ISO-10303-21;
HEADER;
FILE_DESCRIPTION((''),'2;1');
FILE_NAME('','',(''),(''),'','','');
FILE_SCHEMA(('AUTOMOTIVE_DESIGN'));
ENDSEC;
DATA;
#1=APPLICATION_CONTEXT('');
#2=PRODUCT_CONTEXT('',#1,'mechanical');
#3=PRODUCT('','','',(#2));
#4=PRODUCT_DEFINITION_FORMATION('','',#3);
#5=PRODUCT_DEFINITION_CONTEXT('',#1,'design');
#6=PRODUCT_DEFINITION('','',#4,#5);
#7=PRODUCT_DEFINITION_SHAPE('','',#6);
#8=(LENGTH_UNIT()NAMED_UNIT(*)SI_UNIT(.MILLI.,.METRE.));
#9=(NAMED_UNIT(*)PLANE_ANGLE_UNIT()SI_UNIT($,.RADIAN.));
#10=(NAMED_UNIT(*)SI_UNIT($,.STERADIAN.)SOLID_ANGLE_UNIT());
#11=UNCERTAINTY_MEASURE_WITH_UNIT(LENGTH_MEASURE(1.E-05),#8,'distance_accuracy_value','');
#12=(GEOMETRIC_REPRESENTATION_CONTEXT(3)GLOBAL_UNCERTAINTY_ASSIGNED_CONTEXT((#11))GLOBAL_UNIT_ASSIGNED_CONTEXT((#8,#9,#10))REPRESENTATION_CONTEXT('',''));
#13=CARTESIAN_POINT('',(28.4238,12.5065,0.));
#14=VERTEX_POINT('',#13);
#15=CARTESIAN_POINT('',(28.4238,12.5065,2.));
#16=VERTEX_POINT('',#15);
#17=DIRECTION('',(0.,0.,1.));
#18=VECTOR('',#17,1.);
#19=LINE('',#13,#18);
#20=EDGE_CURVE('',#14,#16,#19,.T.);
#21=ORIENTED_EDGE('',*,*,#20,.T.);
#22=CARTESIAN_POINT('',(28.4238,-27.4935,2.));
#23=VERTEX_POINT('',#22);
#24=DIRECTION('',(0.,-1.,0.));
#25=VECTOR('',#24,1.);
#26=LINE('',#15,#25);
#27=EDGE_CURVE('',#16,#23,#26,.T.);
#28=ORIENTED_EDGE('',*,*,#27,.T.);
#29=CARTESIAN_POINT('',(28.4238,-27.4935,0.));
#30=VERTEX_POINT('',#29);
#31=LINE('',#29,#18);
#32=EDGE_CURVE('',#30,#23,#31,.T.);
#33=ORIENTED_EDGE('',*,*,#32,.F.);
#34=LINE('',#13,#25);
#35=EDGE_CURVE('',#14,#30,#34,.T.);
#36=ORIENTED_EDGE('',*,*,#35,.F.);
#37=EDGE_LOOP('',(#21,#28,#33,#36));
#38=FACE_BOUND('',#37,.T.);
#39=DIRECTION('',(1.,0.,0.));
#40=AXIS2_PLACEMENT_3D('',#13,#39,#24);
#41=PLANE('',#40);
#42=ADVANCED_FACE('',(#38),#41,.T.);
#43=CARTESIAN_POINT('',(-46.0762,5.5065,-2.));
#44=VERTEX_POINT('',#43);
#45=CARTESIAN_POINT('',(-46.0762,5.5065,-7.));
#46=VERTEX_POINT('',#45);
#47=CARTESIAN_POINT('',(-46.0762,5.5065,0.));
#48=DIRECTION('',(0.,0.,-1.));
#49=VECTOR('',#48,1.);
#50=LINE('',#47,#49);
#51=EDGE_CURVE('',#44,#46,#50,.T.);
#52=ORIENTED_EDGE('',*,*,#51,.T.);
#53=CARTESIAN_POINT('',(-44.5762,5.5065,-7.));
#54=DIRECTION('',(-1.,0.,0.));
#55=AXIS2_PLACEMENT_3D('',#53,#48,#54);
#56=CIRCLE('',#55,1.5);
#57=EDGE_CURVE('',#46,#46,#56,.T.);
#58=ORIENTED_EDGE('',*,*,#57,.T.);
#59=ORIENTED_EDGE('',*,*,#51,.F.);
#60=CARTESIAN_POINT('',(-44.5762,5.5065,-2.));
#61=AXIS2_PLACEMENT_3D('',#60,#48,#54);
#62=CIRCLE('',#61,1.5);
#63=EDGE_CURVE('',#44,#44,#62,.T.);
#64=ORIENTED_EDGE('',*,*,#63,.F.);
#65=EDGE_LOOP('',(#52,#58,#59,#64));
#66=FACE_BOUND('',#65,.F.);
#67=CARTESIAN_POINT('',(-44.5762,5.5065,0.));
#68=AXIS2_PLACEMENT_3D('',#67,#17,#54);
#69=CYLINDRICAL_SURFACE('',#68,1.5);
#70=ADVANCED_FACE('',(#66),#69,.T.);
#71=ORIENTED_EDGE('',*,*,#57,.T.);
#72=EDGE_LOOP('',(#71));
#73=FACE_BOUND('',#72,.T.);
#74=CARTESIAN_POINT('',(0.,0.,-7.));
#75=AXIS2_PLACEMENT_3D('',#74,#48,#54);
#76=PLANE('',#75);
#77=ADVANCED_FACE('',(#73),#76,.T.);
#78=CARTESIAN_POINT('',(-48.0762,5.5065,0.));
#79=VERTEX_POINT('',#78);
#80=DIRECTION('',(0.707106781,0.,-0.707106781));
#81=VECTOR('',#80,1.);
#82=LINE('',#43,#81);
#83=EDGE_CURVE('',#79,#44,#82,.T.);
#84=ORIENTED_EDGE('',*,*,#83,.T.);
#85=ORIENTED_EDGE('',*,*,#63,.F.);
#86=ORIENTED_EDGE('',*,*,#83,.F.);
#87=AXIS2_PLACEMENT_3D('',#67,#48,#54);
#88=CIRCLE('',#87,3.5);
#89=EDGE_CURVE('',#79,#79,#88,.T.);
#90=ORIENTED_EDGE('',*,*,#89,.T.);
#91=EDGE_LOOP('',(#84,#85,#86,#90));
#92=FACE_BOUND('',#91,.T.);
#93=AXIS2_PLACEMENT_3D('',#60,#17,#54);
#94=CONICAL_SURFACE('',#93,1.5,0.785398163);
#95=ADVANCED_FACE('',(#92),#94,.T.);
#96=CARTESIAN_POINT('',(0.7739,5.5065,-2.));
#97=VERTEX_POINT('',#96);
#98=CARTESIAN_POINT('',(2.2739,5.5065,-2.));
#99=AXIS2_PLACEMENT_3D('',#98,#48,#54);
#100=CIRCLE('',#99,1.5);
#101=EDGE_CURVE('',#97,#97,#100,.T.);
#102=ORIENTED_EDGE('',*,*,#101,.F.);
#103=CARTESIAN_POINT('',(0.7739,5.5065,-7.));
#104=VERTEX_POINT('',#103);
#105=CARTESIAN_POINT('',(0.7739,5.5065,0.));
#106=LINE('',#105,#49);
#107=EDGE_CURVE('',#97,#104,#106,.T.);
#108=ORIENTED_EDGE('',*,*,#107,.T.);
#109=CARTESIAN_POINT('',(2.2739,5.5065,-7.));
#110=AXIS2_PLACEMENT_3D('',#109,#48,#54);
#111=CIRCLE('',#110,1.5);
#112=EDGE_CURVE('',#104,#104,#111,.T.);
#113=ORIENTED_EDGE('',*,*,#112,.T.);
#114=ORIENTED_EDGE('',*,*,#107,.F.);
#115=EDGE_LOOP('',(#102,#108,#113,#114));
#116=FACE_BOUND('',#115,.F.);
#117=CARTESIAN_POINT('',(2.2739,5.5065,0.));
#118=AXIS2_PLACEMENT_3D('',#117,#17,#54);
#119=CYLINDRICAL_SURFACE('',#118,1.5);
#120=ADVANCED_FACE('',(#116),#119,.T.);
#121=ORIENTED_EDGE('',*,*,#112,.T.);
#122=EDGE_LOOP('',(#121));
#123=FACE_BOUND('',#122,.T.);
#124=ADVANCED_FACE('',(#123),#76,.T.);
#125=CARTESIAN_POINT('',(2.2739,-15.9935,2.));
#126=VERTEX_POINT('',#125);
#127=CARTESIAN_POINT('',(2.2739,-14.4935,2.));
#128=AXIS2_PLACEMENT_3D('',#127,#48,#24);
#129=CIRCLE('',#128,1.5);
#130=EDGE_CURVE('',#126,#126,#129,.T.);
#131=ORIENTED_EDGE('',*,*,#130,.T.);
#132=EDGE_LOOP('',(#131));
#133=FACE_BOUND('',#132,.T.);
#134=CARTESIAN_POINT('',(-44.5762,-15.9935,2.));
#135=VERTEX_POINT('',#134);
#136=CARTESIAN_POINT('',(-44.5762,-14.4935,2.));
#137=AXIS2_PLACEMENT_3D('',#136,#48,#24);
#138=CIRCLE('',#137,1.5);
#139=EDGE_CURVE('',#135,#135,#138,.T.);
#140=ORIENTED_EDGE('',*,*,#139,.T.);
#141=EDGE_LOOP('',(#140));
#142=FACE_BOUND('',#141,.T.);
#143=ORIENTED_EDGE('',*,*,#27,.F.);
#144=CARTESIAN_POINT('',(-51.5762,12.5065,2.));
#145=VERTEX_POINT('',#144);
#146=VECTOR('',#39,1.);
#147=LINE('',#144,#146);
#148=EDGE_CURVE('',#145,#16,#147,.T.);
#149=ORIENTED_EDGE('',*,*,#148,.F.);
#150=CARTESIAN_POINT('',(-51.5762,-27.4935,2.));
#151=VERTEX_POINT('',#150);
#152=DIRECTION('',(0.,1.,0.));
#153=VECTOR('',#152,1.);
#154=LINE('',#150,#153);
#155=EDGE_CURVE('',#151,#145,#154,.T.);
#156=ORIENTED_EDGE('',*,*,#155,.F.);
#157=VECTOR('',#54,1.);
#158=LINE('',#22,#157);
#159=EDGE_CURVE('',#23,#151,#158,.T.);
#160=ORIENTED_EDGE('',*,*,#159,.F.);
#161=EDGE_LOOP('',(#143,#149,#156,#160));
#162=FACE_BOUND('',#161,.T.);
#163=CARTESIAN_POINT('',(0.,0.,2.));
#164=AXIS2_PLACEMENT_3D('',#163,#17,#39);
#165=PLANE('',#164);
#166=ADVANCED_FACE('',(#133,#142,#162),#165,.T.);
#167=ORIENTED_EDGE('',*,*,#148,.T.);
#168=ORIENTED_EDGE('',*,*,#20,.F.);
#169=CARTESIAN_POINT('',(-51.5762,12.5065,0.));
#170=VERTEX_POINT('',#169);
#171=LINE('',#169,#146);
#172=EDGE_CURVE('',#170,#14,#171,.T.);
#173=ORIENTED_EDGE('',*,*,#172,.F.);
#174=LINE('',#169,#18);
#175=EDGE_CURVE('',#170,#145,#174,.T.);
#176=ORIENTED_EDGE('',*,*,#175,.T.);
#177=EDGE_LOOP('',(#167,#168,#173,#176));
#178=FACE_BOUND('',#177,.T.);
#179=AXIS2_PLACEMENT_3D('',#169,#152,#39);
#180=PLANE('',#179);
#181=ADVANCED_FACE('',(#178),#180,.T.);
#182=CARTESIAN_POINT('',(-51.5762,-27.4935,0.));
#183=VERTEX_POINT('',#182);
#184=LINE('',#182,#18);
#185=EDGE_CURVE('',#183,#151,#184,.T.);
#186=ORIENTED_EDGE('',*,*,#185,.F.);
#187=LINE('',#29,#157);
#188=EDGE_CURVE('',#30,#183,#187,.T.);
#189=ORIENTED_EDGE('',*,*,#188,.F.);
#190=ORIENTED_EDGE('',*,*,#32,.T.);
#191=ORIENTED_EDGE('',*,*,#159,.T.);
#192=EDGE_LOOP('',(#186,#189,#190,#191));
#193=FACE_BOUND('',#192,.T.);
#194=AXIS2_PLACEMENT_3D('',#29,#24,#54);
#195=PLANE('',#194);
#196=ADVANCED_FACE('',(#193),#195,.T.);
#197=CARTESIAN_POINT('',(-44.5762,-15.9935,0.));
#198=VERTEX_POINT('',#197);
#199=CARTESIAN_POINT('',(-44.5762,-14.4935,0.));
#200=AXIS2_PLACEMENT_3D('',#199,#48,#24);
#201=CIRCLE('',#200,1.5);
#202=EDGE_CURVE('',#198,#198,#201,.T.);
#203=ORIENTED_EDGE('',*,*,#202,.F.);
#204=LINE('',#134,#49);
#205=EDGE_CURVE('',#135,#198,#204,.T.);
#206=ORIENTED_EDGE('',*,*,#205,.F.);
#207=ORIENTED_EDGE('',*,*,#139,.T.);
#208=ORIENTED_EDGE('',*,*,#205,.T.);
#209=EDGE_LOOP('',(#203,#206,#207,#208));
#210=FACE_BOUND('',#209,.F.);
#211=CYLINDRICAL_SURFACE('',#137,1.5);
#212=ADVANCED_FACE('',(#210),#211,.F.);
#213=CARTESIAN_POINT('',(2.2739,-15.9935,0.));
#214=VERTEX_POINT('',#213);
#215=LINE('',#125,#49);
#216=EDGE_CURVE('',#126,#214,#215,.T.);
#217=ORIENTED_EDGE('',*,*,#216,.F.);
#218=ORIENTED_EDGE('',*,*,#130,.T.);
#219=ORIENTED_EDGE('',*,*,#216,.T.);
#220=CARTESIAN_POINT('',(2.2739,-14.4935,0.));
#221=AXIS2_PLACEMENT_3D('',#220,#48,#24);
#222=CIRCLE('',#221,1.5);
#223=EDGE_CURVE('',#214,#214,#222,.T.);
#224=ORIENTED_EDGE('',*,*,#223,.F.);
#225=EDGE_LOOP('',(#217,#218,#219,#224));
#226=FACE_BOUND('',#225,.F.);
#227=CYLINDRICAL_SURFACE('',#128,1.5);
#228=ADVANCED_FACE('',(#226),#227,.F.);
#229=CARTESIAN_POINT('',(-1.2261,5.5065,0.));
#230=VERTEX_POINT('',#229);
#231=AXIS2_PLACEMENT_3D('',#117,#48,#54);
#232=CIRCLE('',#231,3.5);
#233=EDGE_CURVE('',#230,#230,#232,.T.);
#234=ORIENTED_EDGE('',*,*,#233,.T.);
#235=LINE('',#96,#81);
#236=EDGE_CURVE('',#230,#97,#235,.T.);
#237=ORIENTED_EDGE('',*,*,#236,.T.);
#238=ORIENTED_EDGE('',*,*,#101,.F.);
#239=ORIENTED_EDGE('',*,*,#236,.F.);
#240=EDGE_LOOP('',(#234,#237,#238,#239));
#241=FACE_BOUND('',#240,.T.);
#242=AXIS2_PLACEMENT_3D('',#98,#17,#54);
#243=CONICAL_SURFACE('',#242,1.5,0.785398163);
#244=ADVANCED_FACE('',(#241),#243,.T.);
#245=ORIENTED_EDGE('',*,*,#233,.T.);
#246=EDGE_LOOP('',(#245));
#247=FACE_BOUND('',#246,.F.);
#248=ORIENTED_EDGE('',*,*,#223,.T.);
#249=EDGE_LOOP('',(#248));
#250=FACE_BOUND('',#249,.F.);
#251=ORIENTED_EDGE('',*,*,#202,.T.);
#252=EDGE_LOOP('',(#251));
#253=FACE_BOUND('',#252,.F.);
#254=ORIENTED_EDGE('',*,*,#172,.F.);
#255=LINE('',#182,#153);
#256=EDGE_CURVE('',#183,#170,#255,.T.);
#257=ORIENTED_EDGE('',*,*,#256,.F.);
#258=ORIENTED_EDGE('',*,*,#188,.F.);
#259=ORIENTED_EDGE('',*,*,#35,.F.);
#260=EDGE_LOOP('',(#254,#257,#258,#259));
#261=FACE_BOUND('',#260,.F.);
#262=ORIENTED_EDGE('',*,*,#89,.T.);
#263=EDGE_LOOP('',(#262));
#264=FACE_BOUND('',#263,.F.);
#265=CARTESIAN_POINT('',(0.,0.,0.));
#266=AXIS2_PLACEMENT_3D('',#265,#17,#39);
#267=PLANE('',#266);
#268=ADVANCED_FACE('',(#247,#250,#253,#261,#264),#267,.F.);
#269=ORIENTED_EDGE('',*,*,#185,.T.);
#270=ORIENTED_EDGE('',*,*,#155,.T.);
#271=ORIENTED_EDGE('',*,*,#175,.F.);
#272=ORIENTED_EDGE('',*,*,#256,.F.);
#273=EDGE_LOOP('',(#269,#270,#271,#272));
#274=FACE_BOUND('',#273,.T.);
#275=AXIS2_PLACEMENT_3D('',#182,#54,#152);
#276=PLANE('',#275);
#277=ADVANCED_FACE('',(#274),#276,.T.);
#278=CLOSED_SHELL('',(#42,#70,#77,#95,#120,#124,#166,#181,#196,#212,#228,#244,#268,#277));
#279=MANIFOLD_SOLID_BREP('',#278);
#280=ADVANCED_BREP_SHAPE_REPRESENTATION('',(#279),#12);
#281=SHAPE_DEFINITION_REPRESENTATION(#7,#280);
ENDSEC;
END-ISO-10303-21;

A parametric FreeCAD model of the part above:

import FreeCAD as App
import Part
import Sketcher
from FreeCAD import Vector


def edges_at(feature, points):
    """Names of the edges that pass closest to the given points."""
    edges = feature.Shape.Edges
    near = lambda p: min(range(len(edges)), key=lambda i: edges[i].distToShape(Part.Vertex(*p))[0])
    return sorted({f"Edge{near(p) + 1}" for p in points})

doc = App.newDocument("Part")
body = doc.addObject("PartDesign::Body", "Body")

# Sketch on XY plane
sketch1 = body.newObject("Sketcher::SketchObject", "Sketch")
sketch1.AttachmentSupport = (doc.getObject("XY_Plane"), [""])
sketch1.MapMode = "FlatFace"
sketch1.addGeometry(Part.LineSegment(Vector(28, 13, 0), Vector(-52, 13, 0)), False)
sketch1.addGeometry(Part.LineSegment(Vector(-52, 13, 0), Vector(-52, -27, 0)), False)
sketch1.addGeometry(Part.LineSegment(Vector(-52, -27, 0), Vector(28, -27, 0)), False)
sketch1.addGeometry(Part.LineSegment(Vector(28, -27, 0), Vector(28, 13, 0)), False)
sketch1.addConstraint(Sketcher.Constraint("Coincident", 0, 2, 1, 1))
sketch1.addConstraint(Sketcher.Constraint("Coincident", 1, 2, 2, 1))
sketch1.addConstraint(Sketcher.Constraint("Coincident", 2, 2, 3, 1))
sketch1.addConstraint(Sketcher.Constraint("Coincident", 3, 2, 0, 1))
sketch1.addConstraint(Sketcher.Constraint("Horizontal", 0))
sketch1.addConstraint(Sketcher.Constraint("Vertical", 1))
sketch1.addConstraint(Sketcher.Constraint("Horizontal", 2))
sketch1.addConstraint(Sketcher.Constraint("Vertical", 3))
sketch1.addConstraint(Sketcher.Constraint("DistanceX", 0, 2, 0, 1, 80.0))
sketch1.addConstraint(Sketcher.Constraint("DistanceY", 1, 2, 1, 1, 40.0))
sketch1.addConstraint(Sketcher.Constraint("DistanceX", 0, 2, -1, 1, 51.5762))
sketch1.addConstraint(Sketcher.Constraint("DistanceY", -1, 1, 0, 2, 12.5065))
pad1 = body.newObject("PartDesign::Pad", "Pad")
pad1.Profile = sketch1
pad1.Length = 2

# Sketch on XY plane
sketch2 = body.newObject("Sketcher::SketchObject", "Sketch001")
sketch2.AttachmentSupport = (doc.getObject("XY_Plane"), [""])
sketch2.MapMode = "FlatFace"
sketch2.AttachmentOffset = App.Placement(Vector(0, 0, 2), App.Rotation())
sketch2.addGeometry(Part.Circle(Vector(-44.6, -14.5, 0), Vector(0, 0, 1), 1.5), False)
sketch2.addGeometry(Part.Circle(Vector(2.3, -14.5, 0), Vector(0, 0, 1), 1.5), False)
sketch2.addConstraint(Sketcher.Constraint("Equal", 0, 1))
sketch2.addConstraint(Sketcher.Constraint("Horizontal", 0, 3, 1, 3))
sketch2.addConstraint(Sketcher.Constraint("Diameter", 0, 3.0))
sketch2.addConstraint(Sketcher.Constraint("DistanceX", 0, 3, 1, 3, 46.85))
sketch2.addConstraint(Sketcher.Constraint("DistanceX", -1, 1, 1, 3, 2.274))
sketch2.addConstraint(Sketcher.Constraint("DistanceY", 0, 3, -1, 1, 14.4935))
doc.recompute()
hole = body.newObject("PartDesign::Hole", "Hole")
hole.Profile = sketch2
hole.ThreadType = "None"
hole.Diameter = 3
hole.DepthType = "Dimension"
hole.Depth = 8
hole.DrillPoint = "Angled"
hole.DrillPointAngle = 118

# Sketch on XY plane
sketch3 = body.newObject("Sketcher::SketchObject", "Sketch002")
sketch3.AttachmentSupport = (doc.getObject("XY_Plane"), [""])
sketch3.MapMode = "FlatFace"
sketch3.addGeometry(Part.Circle(Vector(2.3, 5.5, 0), Vector(0, 0, 1), 1.5), False)
sketch3.addGeometry(Part.Circle(Vector(-44.6, 5.5, 0), Vector(0, 0, 1), 1.5), False)
sketch3.addConstraint(Sketcher.Constraint("Equal", 0, 1))
sketch3.addConstraint(Sketcher.Constraint("Horizontal", 0, 3, 1, 3))
sketch3.addConstraint(Sketcher.Constraint("Diameter", 0, 3.0))
sketch3.addConstraint(Sketcher.Constraint("DistanceX", 1, 3, 0, 3, 46.85))
sketch3.addConstraint(Sketcher.Constraint("DistanceX", -1, 1, 0, 3, 2.274))
sketch3.addConstraint(Sketcher.Constraint("DistanceY", -1, 1, 0, 3, 5.5065))
pad2 = body.newObject("PartDesign::Pad", "Pad001")
pad2.Profile = sketch3
pad2.Length = 7
pad2.Reversed = True
doc.recompute()

chamfer = body.newObject("PartDesign::Chamfer", "Chamfer")
chamfer.Base = (pad2, edges_at(pad2, [(3.774, 5.506, 0), (-43.076, 5.506, 0)]))
chamfer.Size = 2

doc.recompute()
